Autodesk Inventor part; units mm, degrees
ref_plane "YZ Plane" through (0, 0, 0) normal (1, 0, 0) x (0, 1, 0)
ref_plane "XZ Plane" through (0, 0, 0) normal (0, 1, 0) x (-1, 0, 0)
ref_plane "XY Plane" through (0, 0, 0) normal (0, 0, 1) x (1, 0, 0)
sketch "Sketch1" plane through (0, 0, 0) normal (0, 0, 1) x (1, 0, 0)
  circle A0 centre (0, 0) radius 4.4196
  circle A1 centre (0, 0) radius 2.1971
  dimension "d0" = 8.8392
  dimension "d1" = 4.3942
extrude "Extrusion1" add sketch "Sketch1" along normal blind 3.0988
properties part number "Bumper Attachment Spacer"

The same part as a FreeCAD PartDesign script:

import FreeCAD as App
import Part
import Sketcher
from FreeCAD import Vector
Q = App.Units.Quantity

doc = App.newDocument("Part")
body = doc.addObject("PartDesign::Body", "Body")

# Sketch on XY plane
sketch1 = body.newObject("Sketcher::SketchObject", "Sketch")
sketch1.AttachmentSupport = (doc.getObject("XY_Plane"), [""])
sketch1.MapMode = "FlatFace"
sketch1.addGeometry(Part.Circle(Vector(0, 0, 0), Vector(0, 0, 1), 4.4), False)
sketch1.addGeometry(Part.Circle(Vector(0, 0, 0), Vector(0, 0, 1), 2.2), False)
sketch1.addConstraint(Sketcher.Constraint("Coincident", 0, 3, -1, 1))
sketch1.addConstraint(Sketcher.Constraint("Coincident", 1, 3, -1, 1))
sketch1.addConstraint(Sketcher.Constraint("Diameter", 0, Q("0.348 in")))
sketch1.addConstraint(Sketcher.Constraint("Diameter", 1, Q("0.173 in")))
pad1 = body.newObject("PartDesign::Pad", "Pad")
pad1.Profile = sketch1
pad1.Length = Q("0.122 in")

doc.recompute()
